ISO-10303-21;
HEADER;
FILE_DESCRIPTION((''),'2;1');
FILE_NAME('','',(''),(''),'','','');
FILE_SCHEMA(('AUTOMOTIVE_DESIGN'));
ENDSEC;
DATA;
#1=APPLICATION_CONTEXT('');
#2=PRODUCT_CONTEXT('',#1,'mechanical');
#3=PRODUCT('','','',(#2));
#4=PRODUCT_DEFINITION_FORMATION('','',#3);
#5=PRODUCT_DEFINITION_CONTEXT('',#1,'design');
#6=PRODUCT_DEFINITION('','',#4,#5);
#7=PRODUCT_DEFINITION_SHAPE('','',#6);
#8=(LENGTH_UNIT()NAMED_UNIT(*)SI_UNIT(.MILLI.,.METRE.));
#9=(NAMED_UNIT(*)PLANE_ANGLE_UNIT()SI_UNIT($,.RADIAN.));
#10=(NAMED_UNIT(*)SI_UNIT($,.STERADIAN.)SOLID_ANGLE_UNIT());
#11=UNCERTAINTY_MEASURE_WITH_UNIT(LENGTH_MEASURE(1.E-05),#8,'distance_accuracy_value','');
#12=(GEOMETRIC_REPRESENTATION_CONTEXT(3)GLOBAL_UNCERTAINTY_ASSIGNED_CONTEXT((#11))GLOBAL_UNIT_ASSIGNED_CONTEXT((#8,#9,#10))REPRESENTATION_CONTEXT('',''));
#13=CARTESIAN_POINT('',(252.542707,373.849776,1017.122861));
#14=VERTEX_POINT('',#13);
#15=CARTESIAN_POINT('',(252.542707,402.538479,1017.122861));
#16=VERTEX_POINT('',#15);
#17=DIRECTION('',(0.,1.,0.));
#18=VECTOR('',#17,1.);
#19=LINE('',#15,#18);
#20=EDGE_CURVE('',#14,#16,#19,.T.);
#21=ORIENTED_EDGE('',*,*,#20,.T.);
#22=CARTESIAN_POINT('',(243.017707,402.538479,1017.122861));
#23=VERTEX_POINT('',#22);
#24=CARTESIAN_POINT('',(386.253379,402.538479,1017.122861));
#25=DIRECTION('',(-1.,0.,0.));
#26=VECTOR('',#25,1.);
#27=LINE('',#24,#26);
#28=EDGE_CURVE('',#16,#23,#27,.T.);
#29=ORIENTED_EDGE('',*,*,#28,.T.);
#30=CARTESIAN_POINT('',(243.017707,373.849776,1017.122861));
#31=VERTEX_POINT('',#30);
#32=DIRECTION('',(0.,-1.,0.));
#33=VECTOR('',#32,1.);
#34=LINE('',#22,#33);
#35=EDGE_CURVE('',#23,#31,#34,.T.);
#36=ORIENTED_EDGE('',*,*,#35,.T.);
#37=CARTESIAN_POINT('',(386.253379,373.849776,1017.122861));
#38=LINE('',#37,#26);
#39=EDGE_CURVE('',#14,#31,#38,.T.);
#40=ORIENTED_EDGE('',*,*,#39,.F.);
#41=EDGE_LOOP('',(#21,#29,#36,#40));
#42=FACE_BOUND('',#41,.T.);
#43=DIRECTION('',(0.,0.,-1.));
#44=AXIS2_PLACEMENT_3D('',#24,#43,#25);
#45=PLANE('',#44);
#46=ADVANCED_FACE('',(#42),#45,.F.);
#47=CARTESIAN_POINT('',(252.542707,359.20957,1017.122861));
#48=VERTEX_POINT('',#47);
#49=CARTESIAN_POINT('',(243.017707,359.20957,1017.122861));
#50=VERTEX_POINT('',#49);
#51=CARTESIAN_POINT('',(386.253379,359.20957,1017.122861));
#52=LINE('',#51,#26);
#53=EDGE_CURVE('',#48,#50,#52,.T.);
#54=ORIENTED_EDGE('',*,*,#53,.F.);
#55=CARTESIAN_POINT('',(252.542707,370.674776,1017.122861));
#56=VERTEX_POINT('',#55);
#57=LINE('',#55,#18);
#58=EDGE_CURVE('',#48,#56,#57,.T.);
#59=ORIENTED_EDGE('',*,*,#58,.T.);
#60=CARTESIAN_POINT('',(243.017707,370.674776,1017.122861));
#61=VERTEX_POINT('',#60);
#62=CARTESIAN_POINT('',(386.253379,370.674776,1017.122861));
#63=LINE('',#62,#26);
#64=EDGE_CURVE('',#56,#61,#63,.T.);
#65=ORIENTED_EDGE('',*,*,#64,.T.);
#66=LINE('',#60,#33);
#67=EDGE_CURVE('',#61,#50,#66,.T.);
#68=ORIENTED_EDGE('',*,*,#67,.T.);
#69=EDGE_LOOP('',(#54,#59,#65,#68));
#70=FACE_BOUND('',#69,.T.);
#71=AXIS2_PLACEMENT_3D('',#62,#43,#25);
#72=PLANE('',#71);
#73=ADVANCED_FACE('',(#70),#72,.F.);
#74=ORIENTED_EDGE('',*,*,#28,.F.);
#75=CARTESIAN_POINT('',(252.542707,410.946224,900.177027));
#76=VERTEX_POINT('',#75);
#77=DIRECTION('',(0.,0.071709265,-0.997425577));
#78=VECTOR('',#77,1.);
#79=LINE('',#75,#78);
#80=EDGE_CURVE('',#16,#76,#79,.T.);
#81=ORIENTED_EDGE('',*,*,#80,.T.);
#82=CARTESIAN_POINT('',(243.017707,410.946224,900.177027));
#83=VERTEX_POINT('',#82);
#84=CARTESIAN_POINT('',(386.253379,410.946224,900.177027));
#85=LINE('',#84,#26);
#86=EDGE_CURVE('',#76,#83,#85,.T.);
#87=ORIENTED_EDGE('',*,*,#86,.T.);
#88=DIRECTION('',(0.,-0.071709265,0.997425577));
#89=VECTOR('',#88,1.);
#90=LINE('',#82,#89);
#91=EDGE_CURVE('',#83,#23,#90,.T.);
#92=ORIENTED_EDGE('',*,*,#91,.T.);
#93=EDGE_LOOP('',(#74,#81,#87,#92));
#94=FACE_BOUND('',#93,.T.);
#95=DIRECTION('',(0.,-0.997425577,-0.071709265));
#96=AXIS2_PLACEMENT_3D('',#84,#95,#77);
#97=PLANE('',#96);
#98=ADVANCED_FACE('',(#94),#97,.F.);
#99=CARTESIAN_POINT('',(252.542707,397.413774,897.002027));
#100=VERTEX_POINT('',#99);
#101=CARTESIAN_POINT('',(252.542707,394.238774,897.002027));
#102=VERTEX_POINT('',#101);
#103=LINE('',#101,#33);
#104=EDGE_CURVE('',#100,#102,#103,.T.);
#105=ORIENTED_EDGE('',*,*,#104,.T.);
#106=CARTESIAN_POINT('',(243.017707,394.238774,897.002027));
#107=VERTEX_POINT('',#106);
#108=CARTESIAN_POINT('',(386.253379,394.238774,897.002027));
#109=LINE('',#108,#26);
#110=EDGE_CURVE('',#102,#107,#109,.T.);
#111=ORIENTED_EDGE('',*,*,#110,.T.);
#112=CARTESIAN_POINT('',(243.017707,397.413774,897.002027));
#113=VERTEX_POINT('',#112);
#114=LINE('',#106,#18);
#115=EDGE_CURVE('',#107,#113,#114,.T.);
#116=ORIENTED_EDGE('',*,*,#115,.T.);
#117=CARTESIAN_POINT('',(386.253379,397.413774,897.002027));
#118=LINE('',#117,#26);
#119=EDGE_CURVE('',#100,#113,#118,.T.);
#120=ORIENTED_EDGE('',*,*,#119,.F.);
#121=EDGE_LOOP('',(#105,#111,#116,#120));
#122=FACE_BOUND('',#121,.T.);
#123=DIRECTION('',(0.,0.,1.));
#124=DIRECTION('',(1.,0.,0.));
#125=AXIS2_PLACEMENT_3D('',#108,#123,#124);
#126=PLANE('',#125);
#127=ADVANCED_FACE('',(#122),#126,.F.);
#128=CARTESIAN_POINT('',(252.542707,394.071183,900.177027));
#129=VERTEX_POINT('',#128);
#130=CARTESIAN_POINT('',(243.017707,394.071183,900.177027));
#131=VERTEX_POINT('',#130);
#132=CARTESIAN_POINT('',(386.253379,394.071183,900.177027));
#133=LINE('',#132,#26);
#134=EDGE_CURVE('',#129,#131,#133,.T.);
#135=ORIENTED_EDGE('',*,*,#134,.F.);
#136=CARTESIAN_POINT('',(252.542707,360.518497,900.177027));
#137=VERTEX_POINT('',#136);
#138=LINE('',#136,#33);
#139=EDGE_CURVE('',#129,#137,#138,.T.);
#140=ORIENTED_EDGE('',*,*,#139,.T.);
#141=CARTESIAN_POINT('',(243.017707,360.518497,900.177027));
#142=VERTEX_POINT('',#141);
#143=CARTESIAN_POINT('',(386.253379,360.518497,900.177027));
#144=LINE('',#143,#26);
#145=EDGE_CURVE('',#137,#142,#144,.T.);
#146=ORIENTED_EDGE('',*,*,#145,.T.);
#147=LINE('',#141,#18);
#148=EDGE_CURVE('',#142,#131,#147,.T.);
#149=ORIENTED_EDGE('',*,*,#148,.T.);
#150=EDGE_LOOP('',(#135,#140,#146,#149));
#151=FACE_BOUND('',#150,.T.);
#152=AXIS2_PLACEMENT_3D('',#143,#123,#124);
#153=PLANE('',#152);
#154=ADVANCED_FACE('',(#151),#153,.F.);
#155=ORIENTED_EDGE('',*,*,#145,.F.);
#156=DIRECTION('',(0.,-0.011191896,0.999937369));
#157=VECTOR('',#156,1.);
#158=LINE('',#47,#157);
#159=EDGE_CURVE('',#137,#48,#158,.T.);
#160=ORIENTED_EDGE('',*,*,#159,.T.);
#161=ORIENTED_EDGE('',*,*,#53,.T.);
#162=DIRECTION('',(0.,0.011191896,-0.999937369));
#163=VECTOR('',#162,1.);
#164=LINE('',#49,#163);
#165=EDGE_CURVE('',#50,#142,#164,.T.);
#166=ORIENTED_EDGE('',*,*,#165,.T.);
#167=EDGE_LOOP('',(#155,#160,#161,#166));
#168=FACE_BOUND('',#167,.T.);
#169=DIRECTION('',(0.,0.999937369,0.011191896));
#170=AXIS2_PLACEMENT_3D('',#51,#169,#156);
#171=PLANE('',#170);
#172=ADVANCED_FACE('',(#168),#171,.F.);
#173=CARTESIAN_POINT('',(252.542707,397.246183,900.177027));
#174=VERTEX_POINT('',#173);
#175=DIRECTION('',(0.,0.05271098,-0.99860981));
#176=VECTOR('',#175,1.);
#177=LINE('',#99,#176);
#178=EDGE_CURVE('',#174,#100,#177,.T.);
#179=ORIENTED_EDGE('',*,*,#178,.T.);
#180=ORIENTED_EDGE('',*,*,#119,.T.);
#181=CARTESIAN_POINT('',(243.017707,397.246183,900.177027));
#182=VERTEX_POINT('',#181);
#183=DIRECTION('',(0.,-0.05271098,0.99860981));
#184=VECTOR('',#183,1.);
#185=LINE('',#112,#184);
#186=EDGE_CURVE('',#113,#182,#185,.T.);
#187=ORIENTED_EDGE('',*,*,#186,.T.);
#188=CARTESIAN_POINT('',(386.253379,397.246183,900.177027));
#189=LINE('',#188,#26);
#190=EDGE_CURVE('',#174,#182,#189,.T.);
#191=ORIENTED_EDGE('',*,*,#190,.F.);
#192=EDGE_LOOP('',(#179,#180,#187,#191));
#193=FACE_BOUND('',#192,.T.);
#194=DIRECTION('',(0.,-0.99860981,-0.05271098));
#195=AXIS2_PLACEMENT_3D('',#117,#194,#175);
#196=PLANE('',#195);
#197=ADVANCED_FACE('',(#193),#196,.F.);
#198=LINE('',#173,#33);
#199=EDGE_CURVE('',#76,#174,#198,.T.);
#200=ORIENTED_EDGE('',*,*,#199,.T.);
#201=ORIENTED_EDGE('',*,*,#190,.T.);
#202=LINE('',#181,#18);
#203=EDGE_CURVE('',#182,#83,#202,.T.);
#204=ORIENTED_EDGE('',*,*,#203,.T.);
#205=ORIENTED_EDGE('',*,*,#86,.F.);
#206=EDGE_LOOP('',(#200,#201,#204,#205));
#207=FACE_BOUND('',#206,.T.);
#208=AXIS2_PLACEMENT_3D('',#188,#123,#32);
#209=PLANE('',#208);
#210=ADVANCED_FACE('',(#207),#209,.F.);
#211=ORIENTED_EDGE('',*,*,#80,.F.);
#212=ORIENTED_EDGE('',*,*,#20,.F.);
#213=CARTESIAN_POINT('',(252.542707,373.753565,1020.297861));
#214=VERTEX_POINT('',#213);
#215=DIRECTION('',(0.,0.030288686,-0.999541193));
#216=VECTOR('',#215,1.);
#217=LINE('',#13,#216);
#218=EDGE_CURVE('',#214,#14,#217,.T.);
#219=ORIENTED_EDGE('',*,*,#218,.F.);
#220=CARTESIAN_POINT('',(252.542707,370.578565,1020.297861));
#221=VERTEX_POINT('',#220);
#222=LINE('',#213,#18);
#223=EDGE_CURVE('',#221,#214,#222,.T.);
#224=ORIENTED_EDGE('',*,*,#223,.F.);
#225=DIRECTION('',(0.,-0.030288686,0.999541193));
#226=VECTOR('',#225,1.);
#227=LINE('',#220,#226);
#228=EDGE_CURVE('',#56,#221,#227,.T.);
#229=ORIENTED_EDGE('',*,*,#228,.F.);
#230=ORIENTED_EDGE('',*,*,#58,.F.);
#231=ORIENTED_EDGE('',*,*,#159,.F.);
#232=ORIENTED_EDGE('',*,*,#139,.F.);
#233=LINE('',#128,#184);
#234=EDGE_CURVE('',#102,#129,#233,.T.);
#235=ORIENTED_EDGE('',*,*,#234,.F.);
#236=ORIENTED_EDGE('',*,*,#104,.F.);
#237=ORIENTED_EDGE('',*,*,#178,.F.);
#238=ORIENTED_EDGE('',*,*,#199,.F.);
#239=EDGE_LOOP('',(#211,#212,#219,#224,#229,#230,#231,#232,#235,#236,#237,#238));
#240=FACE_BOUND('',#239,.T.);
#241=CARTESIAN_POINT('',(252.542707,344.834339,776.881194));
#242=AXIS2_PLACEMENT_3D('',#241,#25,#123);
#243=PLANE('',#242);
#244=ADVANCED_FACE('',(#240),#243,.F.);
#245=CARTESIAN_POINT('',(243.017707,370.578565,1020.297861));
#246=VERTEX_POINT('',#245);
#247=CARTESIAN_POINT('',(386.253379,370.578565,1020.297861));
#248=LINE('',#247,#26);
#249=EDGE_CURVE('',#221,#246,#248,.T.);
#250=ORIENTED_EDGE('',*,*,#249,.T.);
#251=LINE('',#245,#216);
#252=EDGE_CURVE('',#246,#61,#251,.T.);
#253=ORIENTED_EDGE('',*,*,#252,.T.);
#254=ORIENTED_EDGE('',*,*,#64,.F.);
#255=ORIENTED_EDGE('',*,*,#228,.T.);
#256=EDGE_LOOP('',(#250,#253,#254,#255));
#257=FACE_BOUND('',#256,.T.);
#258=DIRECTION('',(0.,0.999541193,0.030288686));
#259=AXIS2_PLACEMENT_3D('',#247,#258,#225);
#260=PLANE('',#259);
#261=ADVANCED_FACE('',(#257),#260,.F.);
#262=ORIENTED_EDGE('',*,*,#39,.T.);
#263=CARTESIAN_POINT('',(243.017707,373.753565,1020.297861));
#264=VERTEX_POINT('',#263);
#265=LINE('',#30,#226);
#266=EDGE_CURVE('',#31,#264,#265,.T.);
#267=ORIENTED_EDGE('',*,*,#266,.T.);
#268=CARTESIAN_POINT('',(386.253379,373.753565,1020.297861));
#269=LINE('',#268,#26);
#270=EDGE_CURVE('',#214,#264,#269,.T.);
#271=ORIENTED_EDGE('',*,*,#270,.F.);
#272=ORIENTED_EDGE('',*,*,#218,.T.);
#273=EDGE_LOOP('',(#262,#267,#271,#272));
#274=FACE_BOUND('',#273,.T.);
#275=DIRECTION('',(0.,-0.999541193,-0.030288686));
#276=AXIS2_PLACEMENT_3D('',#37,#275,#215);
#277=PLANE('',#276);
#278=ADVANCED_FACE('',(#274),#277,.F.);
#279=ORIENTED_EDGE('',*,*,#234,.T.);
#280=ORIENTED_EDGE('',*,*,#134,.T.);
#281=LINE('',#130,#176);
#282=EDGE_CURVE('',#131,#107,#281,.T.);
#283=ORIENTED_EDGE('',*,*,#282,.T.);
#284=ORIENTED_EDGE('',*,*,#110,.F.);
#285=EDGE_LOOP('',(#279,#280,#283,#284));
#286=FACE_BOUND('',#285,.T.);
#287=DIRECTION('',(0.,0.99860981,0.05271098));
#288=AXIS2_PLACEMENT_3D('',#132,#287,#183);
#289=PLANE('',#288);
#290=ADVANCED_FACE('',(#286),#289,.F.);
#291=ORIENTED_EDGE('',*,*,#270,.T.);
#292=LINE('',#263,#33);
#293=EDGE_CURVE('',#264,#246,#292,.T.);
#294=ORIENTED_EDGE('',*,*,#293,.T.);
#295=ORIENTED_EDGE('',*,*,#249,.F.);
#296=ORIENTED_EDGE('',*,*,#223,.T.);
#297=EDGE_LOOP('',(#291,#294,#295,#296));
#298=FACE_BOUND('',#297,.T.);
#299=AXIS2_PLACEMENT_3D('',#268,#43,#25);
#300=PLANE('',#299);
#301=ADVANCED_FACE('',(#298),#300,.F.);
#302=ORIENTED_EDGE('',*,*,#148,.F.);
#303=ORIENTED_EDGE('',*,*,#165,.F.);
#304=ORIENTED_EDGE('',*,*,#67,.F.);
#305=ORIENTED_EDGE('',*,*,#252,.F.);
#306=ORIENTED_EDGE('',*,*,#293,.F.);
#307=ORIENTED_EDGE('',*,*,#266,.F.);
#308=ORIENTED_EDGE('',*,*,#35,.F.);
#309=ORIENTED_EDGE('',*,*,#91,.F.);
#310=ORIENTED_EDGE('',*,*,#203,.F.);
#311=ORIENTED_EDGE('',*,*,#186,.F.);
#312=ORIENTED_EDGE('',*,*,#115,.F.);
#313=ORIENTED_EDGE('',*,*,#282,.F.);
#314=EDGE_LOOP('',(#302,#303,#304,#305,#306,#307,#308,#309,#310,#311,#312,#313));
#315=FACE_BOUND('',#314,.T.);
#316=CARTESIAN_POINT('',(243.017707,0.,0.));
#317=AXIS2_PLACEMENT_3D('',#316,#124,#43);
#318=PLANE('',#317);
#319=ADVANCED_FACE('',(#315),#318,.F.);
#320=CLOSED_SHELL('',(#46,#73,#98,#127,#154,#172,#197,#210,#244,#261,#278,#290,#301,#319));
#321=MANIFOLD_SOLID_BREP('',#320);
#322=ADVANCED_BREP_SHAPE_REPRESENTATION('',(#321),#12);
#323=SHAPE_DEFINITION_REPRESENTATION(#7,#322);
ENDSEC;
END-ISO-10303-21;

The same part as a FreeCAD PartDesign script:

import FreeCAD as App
import Part
import Sketcher

V = App.Vector
Q = App.Units.Quantity


def add_polygon(sketch, points):
    """Adds a closed chain of lines whose ends are joined by coincident constraints."""
    first, n = sketch.GeometryCount, len(points)
    for a, b in zip(points, points[1:] + points[:1]):
        sketch.addGeometry(Part.LineSegment(App.Vector(*a, 0), App.Vector(*b, 0)), False)
    for i in range(n):
        sketch.addConstraint(Sketcher.Constraint("Coincident", first + i, 2, first + (i + 1) % n, 1))

doc = App.newDocument("Part")
params = doc.addObject("Spreadsheet::Sheet", "Params")
for row, (alias, value) in enumerate([
    ("sketch1_width", "0.125 in"),
    ("pad1_length", "0.375 in"),
], start=1):
    params.set(f"A{row}", alias)
    params.set(f"B{row}", "=" + value)
    params.setAlias(f"B{row}", alias)

body = doc.addObject("PartDesign::Body", "Body")

sketch1 = body.newObject("Sketcher::SketchObject", "Sketch")
sketch1.AttachmentSupport = (doc.getObject("YZ_Plane"), [""])
sketch1.MapMode = "FlatFace"
sketch1.AttachmentOffset = App.Placement(V(0, 0, 243.017707), App.Rotation())
add_polygon(sketch1, [(373.8, 1020.3), (370.6, 1020.3), (370.7, 1017.1), (359.2, 1017.1), (360.5, 900.2), (394.1, 900.2), (394.2, 897), (397.4, 897), (397.2, 900.2), (410.9, 900.2), (402.5, 1017.1), (373.8, 1017.1)])
sketch1.addConstraint(Sketcher.Constraint("Horizontal", 0))
sketch1.addConstraint(Sketcher.Constraint("Horizontal", 2))
sketch1.addConstraint(Sketcher.Constraint("Horizontal", 4))
sketch1.addConstraint(Sketcher.Constraint("Horizontal", 6))
sketch1.addConstraint(Sketcher.Constraint("Horizontal", 8))
sketch1.addConstraint(Sketcher.Constraint("Horizontal", 10))
sketch1.addConstraint(Sketcher.Constraint("Parallel", 5, 7))
sketch1.addConstraint(Sketcher.Constraint("Parallel", 1, 11))
sketch1.addConstraint(Sketcher.Constraint("Horizontal", 4, 2, 7, 2))
sketch1.addConstraint(Sketcher.Constraint("Horizontal", 2, 2, 9, 2))
sketch1.addConstraint(Sketcher.Constraint("Equal", 0, 6))
sketch1.addConstraint(Sketcher.Constraint("DistanceX", 0, 2, 0, 1, Q("0.125 in")))
sketch1.addConstraint(Sketcher.Constraint("DistanceY", 1, 2, 0, 2, Q("0.125 in")))
sketch1.addConstraint(Sketcher.Constraint("DistanceY", 5, 2, 4, 2, Q("0.125 in")))
sketch1.addConstraint(Sketcher.Constraint("DistanceX", 8, 1, 8, 2, Q("13.70004 mm")))
sketch1.addConstraint(Sketcher.Constraint("Distance", 3, Q("116.953158 mm")))
sketch1.addConstraint(Sketcher.Constraint("Distance", 5, Q("3.17942 mm")))
sketch1.addConstraint(Sketcher.Constraint("Distance", 9, Q("117.247678 mm")))
sketch1.addConstraint(Sketcher.Constraint("DistanceX", 2, 2, 2, 1, Q("11.465207 mm")))
sketch1.addConstraint(Sketcher.Constraint("DistanceX", 4, 1, 4, 2, Q("33.552686 mm")))
sketch1.addConstraint(Sketcher.Constraint("DistanceX", 10, 2, 10, 1, Q("28.688703 mm")))
sketch1.addConstraint(Sketcher.Constraint("DistanceY", -1, 1, 0, 2, Q("1020.297861 mm")))
sketch1.addConstraint(Sketcher.Constraint("DistanceX", -1, 1, 2, 2, Q("359.20957 mm")))
sketch1.addConstraint(Sketcher.Constraint("DistanceX", 0, 2, 1, 2, Q("0.096211 mm")))
sketch1.setExpression("Constraints[23]", "Params.sketch1_width")
pad1 = body.newObject("PartDesign::Pad", "Pad")
pad1.Profile = sketch1
pad1.setExpression("Length", "Params.pad1_length")

doc.recompute()
